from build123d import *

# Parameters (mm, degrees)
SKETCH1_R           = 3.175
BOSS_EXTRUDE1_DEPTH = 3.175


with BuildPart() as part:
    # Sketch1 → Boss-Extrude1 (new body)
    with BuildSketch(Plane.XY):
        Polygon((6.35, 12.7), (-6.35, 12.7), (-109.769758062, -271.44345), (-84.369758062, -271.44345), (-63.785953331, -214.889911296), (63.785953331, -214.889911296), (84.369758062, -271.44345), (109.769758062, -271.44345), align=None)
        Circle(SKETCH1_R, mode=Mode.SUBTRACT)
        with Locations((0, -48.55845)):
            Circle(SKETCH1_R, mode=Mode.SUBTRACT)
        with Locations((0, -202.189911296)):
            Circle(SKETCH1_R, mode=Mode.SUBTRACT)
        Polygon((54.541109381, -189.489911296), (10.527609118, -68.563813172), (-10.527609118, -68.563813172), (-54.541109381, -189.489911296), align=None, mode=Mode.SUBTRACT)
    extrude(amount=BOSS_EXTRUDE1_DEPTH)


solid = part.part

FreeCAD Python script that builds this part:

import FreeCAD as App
import Part
import Sketcher
Q = App.Units.Quantity

doc = App.newDocument("Part")
params = doc.addObject("Spreadsheet::Sheet", "Params")
for row, (alias, value) in enumerate([
    ("sketch1_diameter", "0.25 in"),
    ("sketch1_width", "1 in"),
    ("sketch1_width2", "0.5 in"),
    ("pad1_length", "0.125 in"),
], start=1):
    params.set(f"A{row}", alias)
    params.set(f"B{row}", "=" + value)
    params.setAlias(f"B{row}", alias)

body = doc.addObject("PartDesign::Body", "Body")

# Sketch on XY plane
sketch1 = doc.addObject("Sketcher::SketchObject", "Sketch")
body.addObject(sketch1)
sketch1.AttachmentSupport = (doc.XY_Plane, [""])
sketch1.MapMode = "FlatFace"
sketch1.addGeometry([
    Part.LineSegment(App.Vector(6.35, 12.7, 0), App.Vector(-6.35, 12.7, 0)),  # 0
    Part.LineSegment(App.Vector(-6.35, 12.7, 0), App.Vector(-109.769758, -271.44345, 0)),  # 1
    Part.LineSegment(App.Vector(-109.769758, -271.44345, 0), App.Vector(-84.369758, -271.44345, 0)),  # 2
    Part.LineSegment(App.Vector(-84.369758, -271.44345, 0), App.Vector(-63.785953, -214.889911, 0)),  # 3
    Part.LineSegment(App.Vector(-63.785953, -214.889911, 0), App.Vector(63.785953, -214.889911, 0)),  # 4
    Part.LineSegment(App.Vector(63.785953, -214.889911, 0), App.Vector(84.369758, -271.44345, 0)),  # 5
    Part.LineSegment(App.Vector(84.369758, -271.44345, 0), App.Vector(109.769758, -271.44345, 0)),  # 6
    Part.LineSegment(App.Vector(109.769758, -271.44345, 0), App.Vector(6.35, 12.7, 0)),  # 7
    Part.Circle(App.Vector(0, -202.189911, 0), App.Vector(0, 0, 1), 3.175),  # 8
    Part.LineSegment(App.Vector(10.527609, -68.563813, 0), App.Vector(54.541109, -189.489911, 0)),  # 9
    Part.LineSegment(App.Vector(54.541109, -189.489911, 0), App.Vector(-54.541109, -189.489911, 0)),  # 10
    Part.LineSegment(App.Vector(-54.541109, -189.489911, 0), App.Vector(-10.527609, -68.563813, 0)),  # 11
    Part.LineSegment(App.Vector(-10.527609, -68.563813, 0), App.Vector(10.527609, -68.563813, 0)),  # 12
    Part.Circle(App.Vector(0, -48.55845, 0), App.Vector(0, 0, 1), 3.175),  # 13
    Part.Circle(App.Vector(0, 0, 0), App.Vector(0, 0, 1), 3.175),  # 14
], False)
sketch1.addConstraint([
    Sketcher.Constraint("Coincident", 0, 2, 1, 1),
    Sketcher.Constraint("Coincident", 1, 2, 2, 1),
    Sketcher.Constraint("Coincident", 2, 2, 3, 1),
    Sketcher.Constraint("Coincident", 3, 2, 4, 1),
    Sketcher.Constraint("Coincident", 4, 2, 5, 1),
    Sketcher.Constraint("Coincident", 5, 2, 6, 1),
    Sketcher.Constraint("Coincident", 6, 2, 7, 1),
    Sketcher.Constraint("Coincident", 7, 2, 0, 1),
    Sketcher.Constraint("Coincident", 9, 2, 10, 1),
    Sketcher.Constraint("Coincident", 10, 2, 11, 1),
    Sketcher.Constraint("Coincident", 11, 2, 12, 1),
    Sketcher.Constraint("Coincident", 12, 2, 9, 1),
    Sketcher.Constraint("Horizontal", 0),
    Sketcher.Constraint("Horizontal", 2),
    Sketcher.Constraint("Horizontal", 4),
    Sketcher.Constraint("Horizontal", 6),
    Sketcher.Constraint("Horizontal", 10),
    Sketcher.Constraint("Horizontal", 12),
    Sketcher.Constraint("Coincident", 14, 3, -1, 1),
    Sketcher.Constraint("Equal", 8, 13),
    Sketcher.Constraint("Equal", 13, 14),
    Sketcher.Constraint("Symmetric", 2, 2, 5, 2, -2),
    Sketcher.Constraint("PointOnObject", 8, 3, -2),
    Sketcher.Constraint("PointOnObject", 13, 3, -2),
    Sketcher.Constraint("Parallel", 1, 3),
    Sketcher.Constraint("Parallel", 5, 7),
    Sketcher.Constraint("Parallel", 7, 9),
    Sketcher.Constraint("Parallel", 3, 11),
    Sketcher.Constraint("Equal", 2, 6),
    Sketcher.Constraint("Equal", 3, 5),
    Sketcher.Constraint("Diameter", 8, Q("0.25 in")),
    Sketcher.Constraint("DistanceX", 2, 1, 2, 2, Q("1 in")),
    Sketcher.Constraint("DistanceX", 0, 2, 0, 1, Q("0.5 in")),
    Sketcher.Constraint("Angle", 1, Q("-110 deg")),
    Sketcher.Constraint("DistanceY", 4, 2, 9, 2, Q("1 in")),
    Sketcher.Constraint("DistanceY", -1, 1, 0, 2, Q("0.5 in")),
    Sketcher.Constraint("DistanceY", 3, 2, 8, 3, Q("0.5 in")),
    Sketcher.Constraint("DistanceY", 1, 2, 13, 3, Q("8.775 in")),
    Sketcher.Constraint("DistanceX", 10, 2, 10, 1, 109.082219),
    Sketcher.Constraint("DistanceX", 12, 1, 12, 2, 21.055218),
    Sketcher.Constraint("Distance", 3, 60.183019),
    Sketcher.Constraint("DistanceX", 4, 1, 4, 2, 127.571907),
    Sketcher.Constraint("DistanceX", -1, 1, 9, 2, 54.541109),
])
sketch1.setExpression("Constraints[30]", "Params.sketch1_diameter")
sketch1.setExpression("Constraints[31]", "Params.sketch1_width")
sketch1.setExpression("Constraints[32]", "Params.sketch1_width2")
pad1 = doc.addObject("PartDesign::Pad", "Pad")
body.addObject(pad1)
pad1.Profile = sketch1
pad1.setExpression("Length", "Params.pad1_length")

doc.recompute()
